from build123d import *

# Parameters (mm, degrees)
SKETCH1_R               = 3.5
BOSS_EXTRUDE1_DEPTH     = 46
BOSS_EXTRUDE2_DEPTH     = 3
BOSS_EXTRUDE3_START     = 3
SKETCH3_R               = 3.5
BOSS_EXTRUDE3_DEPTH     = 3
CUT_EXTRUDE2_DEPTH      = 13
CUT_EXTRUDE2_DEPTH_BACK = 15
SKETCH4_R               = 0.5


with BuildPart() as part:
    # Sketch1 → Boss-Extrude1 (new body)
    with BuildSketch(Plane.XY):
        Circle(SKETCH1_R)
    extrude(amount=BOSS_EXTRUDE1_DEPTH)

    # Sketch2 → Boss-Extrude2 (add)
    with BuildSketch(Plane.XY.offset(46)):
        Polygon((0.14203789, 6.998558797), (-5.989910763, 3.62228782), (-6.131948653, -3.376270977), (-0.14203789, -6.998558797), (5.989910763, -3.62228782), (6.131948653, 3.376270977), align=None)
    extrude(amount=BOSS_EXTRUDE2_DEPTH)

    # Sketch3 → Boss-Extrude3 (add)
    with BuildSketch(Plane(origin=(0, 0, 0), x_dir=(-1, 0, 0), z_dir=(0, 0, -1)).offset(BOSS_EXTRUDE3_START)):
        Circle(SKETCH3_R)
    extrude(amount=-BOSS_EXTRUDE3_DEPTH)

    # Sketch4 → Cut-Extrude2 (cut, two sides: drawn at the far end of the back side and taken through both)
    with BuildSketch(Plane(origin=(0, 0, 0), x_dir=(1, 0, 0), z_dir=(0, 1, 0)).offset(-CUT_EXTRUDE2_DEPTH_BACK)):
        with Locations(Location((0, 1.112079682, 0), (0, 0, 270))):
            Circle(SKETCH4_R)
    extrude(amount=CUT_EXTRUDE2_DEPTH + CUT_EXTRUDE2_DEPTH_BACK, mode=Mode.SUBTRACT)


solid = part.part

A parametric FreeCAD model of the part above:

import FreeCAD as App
import Part
import Sketcher
from FreeCAD import Vector
Q = App.Units.Quantity

doc = App.newDocument("Part")
body = doc.addObject("PartDesign::Body", "Body")

# Sketch on XY plane
sketch1 = body.newObject("Sketcher::SketchObject", "Sketch")
sketch1.AttachmentSupport = (doc.getObject("XY_Plane"), [""])
sketch1.MapMode = "FlatFace"
sketch1.addGeometry(Part.Circle(Vector(0, 0, 0), Vector(0, 0, 1), 3.5), False)
sketch1.addConstraint([
    Sketcher.Constraint("Coincident", 0, 3, -1, 1),
    Sketcher.Constraint("Diameter", 0, Q("7 mm")),
])
pad1 = body.newObject("PartDesign::Pad", "Pad")
pad1.Profile = sketch1
pad1.Length = 46

# Sketch on XY plane
sketch2 = body.newObject("Sketcher::SketchObject", "Sketch001")
sketch2.AttachmentSupport = (doc.getObject("XY_Plane"), [""])
sketch2.MapMode = "FlatFace"
sketch2.AttachmentOffset = App.Placement(Vector(0, 0, 46), App.Rotation())
sketch2.addGeometry([
    Part.LineSegment(Vector(0, 7, 0), Vector(-6, 4, 0)),  # 0
    Part.LineSegment(Vector(-6, 4, 0), Vector(-6, -3, 0)),  # 1
    Part.LineSegment(Vector(-6, -3, 0), Vector(0, -7, 0)),  # 2
    Part.LineSegment(Vector(0, -7, 0), Vector(6, -4, 0)),  # 3
    Part.LineSegment(Vector(6, -4, 0), Vector(6, 3, 0)),  # 4
    Part.LineSegment(Vector(6, 3, 0), Vector(0, 7, 0)),  # 5
], False)
sketch2.addConstraint([
    Sketcher.Constraint("Coincident", 0, 2, 1, 1),
    Sketcher.Constraint("Coincident", 1, 2, 2, 1),
    Sketcher.Constraint("Coincident", 2, 2, 3, 1),
    Sketcher.Constraint("Coincident", 3, 2, 4, 1),
    Sketcher.Constraint("Coincident", 4, 2, 5, 1),
    Sketcher.Constraint("Coincident", 5, 2, 0, 1),
    Sketcher.Constraint("Symmetric", 0, 2, 3, 2, -1, 1),
    Sketcher.Constraint("Symmetric", 1, 2, 4, 2, -1, 1),
    Sketcher.Constraint("Symmetric", 2, 2, 5, 2, -1, 1),
    Sketcher.Constraint("Equal", 0, 1),
    Sketcher.Constraint("Equal", 1, 2),
    Sketcher.Constraint("Distance", 0, Q("7 mm")),
    Sketcher.Constraint("DistanceX", 0, 2, -1, 1, Q("5.989911 mm")),
    Sketcher.Constraint("DistanceX", 1, 2, -1, 1, Q("6.131949 mm")),
    Sketcher.Constraint("DistanceY", 1, 2, -1, 1, Q("3.376271 mm")),
])
pad2 = body.newObject("PartDesign::Pad", "Pad001")
pad2.Profile = sketch2
pad2.Length = 3

# Sketch on XY plane
sketch3 = body.newObject("Sketcher::SketchObject", "Sketch002")
sketch3.AttachmentSupport = (doc.getObject("XY_Plane"), [""])
sketch3.MapMode = "FlatFace"
sketch3.AttachmentOffset = App.Placement(Vector(0, 0, -3), App.Rotation())
sketch3.addGeometry(Part.Circle(Vector(0, 0, 0), Vector(0, 0, 1), 3.5), False)
sketch3.addConstraint([
    Sketcher.Constraint("Coincident", 0, 3, -1, 1),
    Sketcher.Constraint("Diameter", 0, Q("7 mm")),
])
pad3 = body.newObject("PartDesign::Pad", "Pad002")
pad3.Profile = sketch3
pad3.Length = 3

# Sketch on XZ plane
sketch4 = body.newObject("Sketcher::SketchObject", "Sketch003")
sketch4.AttachmentSupport = (doc.getObject("XZ_Plane"), [""])
sketch4.MapMode = "FlatFace"
sketch4.addGeometry(Part.Circle(Vector(0, -1.1, 0), Vector(0, 0, 1), 0.5), False)
sketch4.addConstraint([
    Sketcher.Constraint("PointOnObject", 0, 3, -2),
    Sketcher.Constraint("Diameter", 0, Q("1 mm")),
    Sketcher.Constraint("DistanceY", 0, 3, -1, 1, Q("1.11208 mm")),
])
pocket1 = body.newObject("PartDesign::Pocket", "Pocket")
pocket1.Profile = sketch4
pocket1.Type = "ThroughAll"
pocket1.Midplane = True

doc.recompute()
